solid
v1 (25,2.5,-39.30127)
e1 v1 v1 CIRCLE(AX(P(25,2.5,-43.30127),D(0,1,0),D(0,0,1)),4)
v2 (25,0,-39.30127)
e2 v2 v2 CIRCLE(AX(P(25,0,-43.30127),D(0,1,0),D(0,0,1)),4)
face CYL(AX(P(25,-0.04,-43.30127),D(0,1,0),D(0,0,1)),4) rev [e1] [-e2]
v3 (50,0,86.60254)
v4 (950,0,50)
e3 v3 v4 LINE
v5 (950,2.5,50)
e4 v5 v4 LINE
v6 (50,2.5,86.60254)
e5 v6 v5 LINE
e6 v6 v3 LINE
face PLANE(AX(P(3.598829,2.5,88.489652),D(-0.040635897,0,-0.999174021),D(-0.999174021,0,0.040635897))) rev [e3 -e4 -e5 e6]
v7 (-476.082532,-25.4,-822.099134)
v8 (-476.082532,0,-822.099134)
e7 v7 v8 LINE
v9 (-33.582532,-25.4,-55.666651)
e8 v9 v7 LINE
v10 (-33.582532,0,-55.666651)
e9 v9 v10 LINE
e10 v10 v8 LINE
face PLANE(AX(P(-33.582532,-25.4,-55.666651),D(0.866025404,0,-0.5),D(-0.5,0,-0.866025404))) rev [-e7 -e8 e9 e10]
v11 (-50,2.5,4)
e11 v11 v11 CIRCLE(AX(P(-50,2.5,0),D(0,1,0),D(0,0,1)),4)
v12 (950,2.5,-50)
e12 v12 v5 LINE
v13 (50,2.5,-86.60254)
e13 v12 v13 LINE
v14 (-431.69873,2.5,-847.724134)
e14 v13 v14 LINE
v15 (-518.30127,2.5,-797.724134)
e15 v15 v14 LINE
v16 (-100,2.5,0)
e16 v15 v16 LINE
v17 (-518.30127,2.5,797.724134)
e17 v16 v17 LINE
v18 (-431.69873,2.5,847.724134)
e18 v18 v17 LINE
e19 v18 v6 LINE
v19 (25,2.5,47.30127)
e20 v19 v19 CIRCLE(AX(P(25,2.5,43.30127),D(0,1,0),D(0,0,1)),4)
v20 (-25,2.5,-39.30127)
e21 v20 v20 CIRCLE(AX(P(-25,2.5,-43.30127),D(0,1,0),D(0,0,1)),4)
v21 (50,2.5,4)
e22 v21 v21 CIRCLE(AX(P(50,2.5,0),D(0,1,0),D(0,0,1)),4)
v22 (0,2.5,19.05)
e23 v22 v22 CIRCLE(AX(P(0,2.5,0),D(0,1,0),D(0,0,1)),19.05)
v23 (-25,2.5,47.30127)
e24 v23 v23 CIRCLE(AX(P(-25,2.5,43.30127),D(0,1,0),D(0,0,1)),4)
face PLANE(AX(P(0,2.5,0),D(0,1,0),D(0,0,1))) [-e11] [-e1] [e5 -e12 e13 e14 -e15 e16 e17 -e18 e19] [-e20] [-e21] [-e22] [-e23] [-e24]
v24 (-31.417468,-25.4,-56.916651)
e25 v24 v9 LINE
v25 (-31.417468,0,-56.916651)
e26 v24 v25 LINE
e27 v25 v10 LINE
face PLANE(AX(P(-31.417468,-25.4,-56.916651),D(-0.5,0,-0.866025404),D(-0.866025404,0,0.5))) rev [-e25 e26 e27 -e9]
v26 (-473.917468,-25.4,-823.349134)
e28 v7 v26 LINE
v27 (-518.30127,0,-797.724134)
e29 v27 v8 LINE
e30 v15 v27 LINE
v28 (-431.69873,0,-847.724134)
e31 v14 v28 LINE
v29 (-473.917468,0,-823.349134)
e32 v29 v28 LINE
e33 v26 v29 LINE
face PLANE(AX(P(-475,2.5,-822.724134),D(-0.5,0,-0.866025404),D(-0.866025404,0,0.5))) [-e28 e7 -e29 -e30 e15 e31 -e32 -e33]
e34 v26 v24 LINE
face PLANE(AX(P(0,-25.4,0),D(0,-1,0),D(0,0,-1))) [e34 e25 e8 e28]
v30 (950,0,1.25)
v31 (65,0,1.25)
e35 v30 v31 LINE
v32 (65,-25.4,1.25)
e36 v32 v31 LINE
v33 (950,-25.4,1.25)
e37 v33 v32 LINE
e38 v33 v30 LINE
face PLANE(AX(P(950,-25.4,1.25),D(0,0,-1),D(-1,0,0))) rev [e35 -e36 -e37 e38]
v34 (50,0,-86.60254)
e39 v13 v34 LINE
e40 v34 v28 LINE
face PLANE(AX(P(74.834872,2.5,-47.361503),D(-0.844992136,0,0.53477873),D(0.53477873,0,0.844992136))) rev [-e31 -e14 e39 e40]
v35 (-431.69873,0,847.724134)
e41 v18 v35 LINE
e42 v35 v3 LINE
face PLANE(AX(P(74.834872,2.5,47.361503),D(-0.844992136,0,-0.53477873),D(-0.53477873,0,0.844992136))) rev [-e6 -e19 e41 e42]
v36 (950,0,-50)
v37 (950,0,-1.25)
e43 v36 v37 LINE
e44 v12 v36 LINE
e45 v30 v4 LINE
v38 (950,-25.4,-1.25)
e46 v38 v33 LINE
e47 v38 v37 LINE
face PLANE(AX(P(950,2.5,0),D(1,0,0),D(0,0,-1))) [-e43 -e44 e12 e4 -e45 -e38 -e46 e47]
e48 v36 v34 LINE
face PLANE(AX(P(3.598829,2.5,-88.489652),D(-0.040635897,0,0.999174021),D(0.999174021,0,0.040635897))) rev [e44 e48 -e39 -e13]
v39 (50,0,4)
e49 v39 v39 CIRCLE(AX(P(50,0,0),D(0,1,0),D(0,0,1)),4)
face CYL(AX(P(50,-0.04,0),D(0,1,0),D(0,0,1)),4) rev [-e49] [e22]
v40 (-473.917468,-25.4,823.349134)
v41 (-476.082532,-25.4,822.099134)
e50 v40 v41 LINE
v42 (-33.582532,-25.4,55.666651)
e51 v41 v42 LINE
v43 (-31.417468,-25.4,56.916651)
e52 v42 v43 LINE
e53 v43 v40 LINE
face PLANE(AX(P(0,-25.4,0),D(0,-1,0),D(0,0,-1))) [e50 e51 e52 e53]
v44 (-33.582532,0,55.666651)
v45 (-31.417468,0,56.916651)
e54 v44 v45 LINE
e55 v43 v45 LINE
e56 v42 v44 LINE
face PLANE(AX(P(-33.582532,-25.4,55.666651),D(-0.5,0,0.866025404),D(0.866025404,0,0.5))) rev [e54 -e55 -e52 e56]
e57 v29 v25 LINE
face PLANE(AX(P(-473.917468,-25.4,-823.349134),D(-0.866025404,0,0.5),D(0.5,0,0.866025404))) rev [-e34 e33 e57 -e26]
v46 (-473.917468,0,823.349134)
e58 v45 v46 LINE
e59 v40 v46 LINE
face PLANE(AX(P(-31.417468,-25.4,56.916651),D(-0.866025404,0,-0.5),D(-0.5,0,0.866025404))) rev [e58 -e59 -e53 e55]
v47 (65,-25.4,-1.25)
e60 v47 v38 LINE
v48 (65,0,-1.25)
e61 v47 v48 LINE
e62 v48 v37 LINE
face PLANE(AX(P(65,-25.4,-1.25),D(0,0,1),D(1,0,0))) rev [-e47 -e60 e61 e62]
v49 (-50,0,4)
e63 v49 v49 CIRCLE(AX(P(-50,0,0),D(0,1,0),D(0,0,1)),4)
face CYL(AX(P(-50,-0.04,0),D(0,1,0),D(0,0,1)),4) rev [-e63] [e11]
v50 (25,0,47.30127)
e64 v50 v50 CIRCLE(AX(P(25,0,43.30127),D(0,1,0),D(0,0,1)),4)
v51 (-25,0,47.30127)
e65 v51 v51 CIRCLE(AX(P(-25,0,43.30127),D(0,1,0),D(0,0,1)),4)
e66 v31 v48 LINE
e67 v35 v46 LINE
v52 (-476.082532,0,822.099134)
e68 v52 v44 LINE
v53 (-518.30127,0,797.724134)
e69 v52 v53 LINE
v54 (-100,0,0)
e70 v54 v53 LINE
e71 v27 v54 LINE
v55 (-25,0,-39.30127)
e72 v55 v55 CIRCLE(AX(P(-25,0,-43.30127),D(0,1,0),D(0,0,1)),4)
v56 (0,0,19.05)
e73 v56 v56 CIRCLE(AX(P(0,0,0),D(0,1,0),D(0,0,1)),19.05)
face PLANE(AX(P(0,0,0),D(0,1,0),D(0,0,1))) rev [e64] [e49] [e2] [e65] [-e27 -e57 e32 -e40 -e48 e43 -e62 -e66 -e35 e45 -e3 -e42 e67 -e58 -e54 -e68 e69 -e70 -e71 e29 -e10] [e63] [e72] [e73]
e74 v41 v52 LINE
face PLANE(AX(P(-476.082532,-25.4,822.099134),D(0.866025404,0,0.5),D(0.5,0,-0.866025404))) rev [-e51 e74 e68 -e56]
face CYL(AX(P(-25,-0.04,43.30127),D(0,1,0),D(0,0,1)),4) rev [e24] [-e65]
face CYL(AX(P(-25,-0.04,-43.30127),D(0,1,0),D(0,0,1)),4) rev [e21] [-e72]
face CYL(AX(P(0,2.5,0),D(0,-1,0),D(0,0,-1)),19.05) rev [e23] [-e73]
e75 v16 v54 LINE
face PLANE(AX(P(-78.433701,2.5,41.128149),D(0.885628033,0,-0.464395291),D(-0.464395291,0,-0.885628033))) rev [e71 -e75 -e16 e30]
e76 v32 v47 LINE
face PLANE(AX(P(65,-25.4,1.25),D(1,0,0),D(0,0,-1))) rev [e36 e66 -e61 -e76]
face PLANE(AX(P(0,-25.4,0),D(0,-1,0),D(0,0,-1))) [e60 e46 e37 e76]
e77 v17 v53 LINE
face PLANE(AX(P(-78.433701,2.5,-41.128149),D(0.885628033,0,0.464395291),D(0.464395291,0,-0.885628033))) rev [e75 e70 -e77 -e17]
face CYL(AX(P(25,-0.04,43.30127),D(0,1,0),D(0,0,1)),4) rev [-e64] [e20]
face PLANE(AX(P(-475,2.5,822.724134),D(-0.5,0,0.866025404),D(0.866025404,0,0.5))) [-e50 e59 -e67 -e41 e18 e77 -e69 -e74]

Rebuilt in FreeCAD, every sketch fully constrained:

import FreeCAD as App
import Part
import Sketcher

V = App.Vector
Q = App.Units.Quantity

doc = App.newDocument("Part")
body = doc.addObject("PartDesign::Body", "Body")

# Sketch on XZ plane
sketch1 = body.newObject("Sketcher::SketchObject", "Sketch")
sketch1.AttachmentSupport = (doc.getObject("XZ_Plane"), [""])
sketch1.MapMode = "FlatFace"
sketch1.addGeometry(Part.LineSegment(V(-518.30127, 797.724134, 0), V(-431.69873, 847.724134, 0)), False)
sketch1.addGeometry(Part.LineSegment(V(-431.69873, 847.724134, 0), V(50, 86.60254, 0)), False)
sketch1.addGeometry(Part.LineSegment(V(50, 86.60254, 0), V(950, 50, 0)), False)
sketch1.addGeometry(Part.LineSegment(V(950, 50, 0), V(950, -50, 0)), False)
sketch1.addGeometry(Part.LineSegment(V(950, -50, 0), V(50, -86.60254, 0)), False)
sketch1.addGeometry(Part.LineSegment(V(50, -86.60254, 0), V(-431.69873, -847.724134, 0)), False)
sketch1.addGeometry(Part.LineSegment(V(-431.69873, -847.724134, 0), V(-518.30127, -797.724134, 0)), False)
sketch1.addGeometry(Part.LineSegment(V(-518.30127, -797.724134, 0), V(-100, 0, 0)), False)
sketch1.addGeometry(Part.LineSegment(V(-100, 0, 0), V(-518.30127, 797.724134, 0)), False)
sketch1.addGeometry(Part.Circle(V(0, 0, 0), V(0, 0, 1), 19.05), False)
sketch1.addConstraint(Sketcher.Constraint("Coincident", 0, 2, 1, 1))
sketch1.addConstraint(Sketcher.Constraint("Coincident", 1, 2, 2, 1))
sketch1.addConstraint(Sketcher.Constraint("Coincident", 2, 2, 3, 1))
sketch1.addConstraint(Sketcher.Constraint("Coincident", 3, 2, 4, 1))
sketch1.addConstraint(Sketcher.Constraint("Coincident", 4, 2, 5, 1))
sketch1.addConstraint(Sketcher.Constraint("Coincident", 5, 2, 6, 1))
sketch1.addConstraint(Sketcher.Constraint("Coincident", 6, 2, 7, 1))
sketch1.addConstraint(Sketcher.Constraint("Coincident", 7, 2, 8, 1))
sketch1.addConstraint(Sketcher.Constraint("Coincident", 8, 2, 0, 1))
sketch1.addConstraint(Sketcher.Constraint("Vertical", 3))
sketch1.addConstraint(Sketcher.Constraint("Coincident", 9, 3, -1, 1))
sketch1.addConstraint(Sketcher.Constraint("Symmetric", 1, 2, 4, 2, -1))
sketch1.addConstraint(Sketcher.Constraint("Symmetric", 0, 2, 5, 2, -1))
sketch1.addConstraint(Sketcher.Constraint("Symmetric", 6, 2, 8, 2, -1))
sketch1.addConstraint(Sketcher.Constraint("PointOnObject", 7, 2, -1))
sketch1.addConstraint(Sketcher.Constraint("Equal", 1, 2))
sketch1.addConstraint(Sketcher.Constraint("Equal", 2, 4))
sketch1.addConstraint(Sketcher.Constraint("Equal", 5, 7))
sketch1.addConstraint(Sketcher.Constraint("Diameter", 9, Q("38.1 mm")))
sketch1.addConstraint(Sketcher.Constraint("DistanceY", 3, 2, 3, 1, Q("100 mm")))
sketch1.addConstraint(Sketcher.Constraint("Angle", 0, Q("30 deg")))
sketch1.addConstraint(Sketcher.Constraint("Distance", 0, Q("100 mm")))
sketch1.addConstraint(Sketcher.Constraint("DistanceX", -1, 1, 1, 2, Q("50 mm")))
sketch1.addConstraint(Sketcher.Constraint("DistanceX", -1, 1, 2, 2, Q("950 mm")))
sketch1.addConstraint(Sketcher.Constraint("DistanceX", 7, 2, -1, 1, Q("100 mm")))
sketch1.addConstraint(Sketcher.Constraint("DistanceX", 0, 2, -1, 1, Q("431.69873 mm")))
pad1 = body.newObject("PartDesign::Pad", "Pad")
pad1.Profile = sketch1
pad1.Length = 2.5
pad1.Reversed = True

# Sketch on XZ plane
sketch2 = body.newObject("Sketcher::SketchObject", "Sketch001")
sketch2.AttachmentSupport = (doc.getObject("XZ_Plane"), [""])
sketch2.MapMode = "FlatFace"
sketch2.addGeometry(Part.LineSegment(V(65, 1.25, 0), V(65, -1.25, 0)), False)
sketch2.addGeometry(Part.LineSegment(V(65, -1.25, 0), V(950, -1.25, 0)), False)
sketch2.addGeometry(Part.LineSegment(V(950, -1.25, 0), V(950, 1.25, 0)), False)
sketch2.addGeometry(Part.LineSegment(V(950, 1.25, 0), V(65, 1.25, 0)), False)
sketch2.addGeometry(Part.LineSegment(V(-473.917468, -823.349134, 0), V(-31.417468, -56.916651, 0)), False)
sketch2.addGeometry(Part.LineSegment(V(-31.417468, -56.916651, 0), V(-33.582532, -55.666651, 0)), False)
sketch2.addGeometry(Part.LineSegment(V(-33.582532, -55.666651, 0), V(-476.082532, -822.099134, 0)), False)
sketch2.addGeometry(Part.LineSegment(V(-476.082532, -822.099134, 0), V(-473.917468, -823.349134, 0)), False)
sketch2.addGeometry(Part.LineSegment(V(-476.082532, 822.099134, 0), V(-33.582532, 55.666651, 0)), False)
sketch2.addGeometry(Part.LineSegment(V(-33.582532, 55.666651, 0), V(-31.417468, 56.916651, 0)), False)
sketch2.addGeometry(Part.LineSegment(V(-31.417468, 56.916651, 0), V(-473.917468, 823.349134, 0)), False)
sketch2.addGeometry(Part.LineSegment(V(-473.917468, 823.349134, 0), V(-476.082532, 822.099134, 0)), False)
sketch2.addConstraint(Sketcher.Constraint("Coincident", 0, 2, 1, 1))
sketch2.addConstraint(Sketcher.Constraint("Coincident", 1, 2, 2, 1))
sketch2.addConstraint(Sketcher.Constraint("Coincident", 2, 2, 3, 1))
sketch2.addConstraint(Sketcher.Constraint("Coincident", 3, 2, 0, 1))
sketch2.addConstraint(Sketcher.Constraint("Coincident", 4, 2, 5, 1))
sketch2.addConstraint(Sketcher.Constraint("Coincident", 5, 2, 6, 1))
sketch2.addConstraint(Sketcher.Constraint("Coincident", 6, 2, 7, 1))
sketch2.addConstraint(Sketcher.Constraint("Coincident", 7, 2, 4, 1))
sketch2.addConstraint(Sketcher.Constraint("Coincident", 8, 2, 9, 1))
sketch2.addConstraint(Sketcher.Constraint("Coincident", 9, 2, 10, 1))
sketch2.addConstraint(Sketcher.Constraint("Coincident", 10, 2, 11, 1))
sketch2.addConstraint(Sketcher.Constraint("Coincident", 11, 2, 8, 1))
sketch2.addConstraint(Sketcher.Constraint("Vertical", 0))
sketch2.addConstraint(Sketcher.Constraint("Horizontal", 1))
sketch2.addConstraint(Sketcher.Constraint("Vertical", 2))
sketch2.addConstraint(Sketcher.Constraint("Horizontal", 3))
sketch2.addConstraint(Sketcher.Constraint("Symmetric", 5, 2, 8, 2, -1))
sketch2.addConstraint(Sketcher.Constraint("Symmetric", 4, 2, 9, 2, -1))
sketch2.addConstraint(Sketcher.Constraint("Symmetric", 7, 2, 10, 2, -1))
sketch2.addConstraint(Sketcher.Constraint("Symmetric", 6, 2, 11, 2, -1))
sketch2.addConstraint(Sketcher.Constraint("Perpendicular", 4, 5))
sketch2.addConstraint(Sketcher.Constraint("Parallel", 4, 6))
sketch2.addConstraint(Sketcher.Constraint("Perpendicular", 6, 7))
sketch2.addConstraint(Sketcher.Constraint("DistanceX", 1, 1, 1, 2, Q("885 mm")))
sketch2.addConstraint(Sketcher.Constraint("Angle", 4, Q("60 deg")))
sketch2.addConstraint(Sketcher.Constraint("Distance", 4, Q("885 mm")))
sketch2.addConstraint(Sketcher.Constraint("DistanceY", 0, 2, 0, 1, Q("2.5 mm")))
sketch2.addConstraint(Sketcher.Constraint("DistanceX", -1, 1, 0, 2, Q("65 mm")))
sketch2.addConstraint(Sketcher.Constraint("Distance", 5, Q("2.5 mm")))
sketch2.addConstraint(Sketcher.Constraint("DistanceY", 0, 2, -1, 1, Q("1.25 mm")))
sketch2.addConstraint(Sketcher.Constraint("DistanceX", 4, 2, -1, 1, Q("31.417468 mm")))
sketch2.addConstraint(Sketcher.Constraint("DistanceY", 4, 2, -1, 1, Q("56.916651 mm")))
pad2 = body.newObject("PartDesign::Pad", "Pad001")
pad2.Profile = sketch2
pad2.Length = 25.4

# Sketch on XZ plane
sketch3 = body.newObject("Sketcher::SketchObject", "Sketch002")
sketch3.AttachmentSupport = (doc.getObject("XZ_Plane"), [""])
sketch3.MapMode = "FlatFace"
sketch3.AttachmentOffset = App.Placement(V(0, 0, -2.5), App.Rotation())
sketch3.addGeometry(Part.Circle(V(25, 43.30127, 0), V(0, 0, 1), 4), False)
sketch3.addGeometry(Part.Circle(V(-25, 43.30127, 0), V(0, 0, 1), 4), False)
sketch3.addGeometry(Part.Circle(V(-50, 0, 0), V(0, 0, 1), 4), False)
sketch3.addGeometry(Part.Circle(V(-25, -43.30127, 0), V(0, 0, 1), 4), False)
sketch3.addGeometry(Part.Circle(V(25, -43.30127, 0), V(0, 0, 1), 4), False)
sketch3.addGeometry(Part.Circle(V(50, 0, 0), V(0, 0, 1), 4), False)
sketch3.addConstraint(Sketcher.Constraint("Equal", 0, 1))
sketch3.addConstraint(Sketcher.Constraint("Equal", 1, 2))
sketch3.addConstraint(Sketcher.Constraint("Equal", 2, 3))
sketch3.addConstraint(Sketcher.Constraint("Equal", 3, 4))
sketch3.addConstraint(Sketcher.Constraint("Equal", 4, 5))
sketch3.addConstraint(Sketcher.Constraint("Symmetric", 0, 3, 3, 3, -1, 1))
sketch3.addConstraint(Sketcher.Constraint("Symmetric", 1, 3, 4, 3, -1, 1))
sketch3.addConstraint(Sketcher.Constraint("Symmetric", 2, 3, 5, 3, -1, 1))
sketch3.addConstraint(Sketcher.Constraint("Symmetric", 0, 3, 1, 3, -2))
sketch3.addConstraint(Sketcher.Constraint("PointOnObject", 2, 3, -1))
sketch3.addConstraint(Sketcher.Constraint("Diameter", 0, Q("8 mm")))
sketch3.addConstraint(Sketcher.Constraint("DistanceX", -1, 1, 0, 3, Q("25 mm")))
sketch3.addConstraint(Sketcher.Constraint("DistanceX", 2, 3, -1, 1, Q("50 mm")))
sketch3.addConstraint(Sketcher.Constraint("DistanceY", -1, 1, 0, 3, Q("43.30127 mm")))
pocket1 = body.newObject("PartDesign::Pocket", "Pocket")
pocket1.Profile = sketch3
pocket1.Length = 2.54
pocket1.Reversed = True

doc.recompute()
